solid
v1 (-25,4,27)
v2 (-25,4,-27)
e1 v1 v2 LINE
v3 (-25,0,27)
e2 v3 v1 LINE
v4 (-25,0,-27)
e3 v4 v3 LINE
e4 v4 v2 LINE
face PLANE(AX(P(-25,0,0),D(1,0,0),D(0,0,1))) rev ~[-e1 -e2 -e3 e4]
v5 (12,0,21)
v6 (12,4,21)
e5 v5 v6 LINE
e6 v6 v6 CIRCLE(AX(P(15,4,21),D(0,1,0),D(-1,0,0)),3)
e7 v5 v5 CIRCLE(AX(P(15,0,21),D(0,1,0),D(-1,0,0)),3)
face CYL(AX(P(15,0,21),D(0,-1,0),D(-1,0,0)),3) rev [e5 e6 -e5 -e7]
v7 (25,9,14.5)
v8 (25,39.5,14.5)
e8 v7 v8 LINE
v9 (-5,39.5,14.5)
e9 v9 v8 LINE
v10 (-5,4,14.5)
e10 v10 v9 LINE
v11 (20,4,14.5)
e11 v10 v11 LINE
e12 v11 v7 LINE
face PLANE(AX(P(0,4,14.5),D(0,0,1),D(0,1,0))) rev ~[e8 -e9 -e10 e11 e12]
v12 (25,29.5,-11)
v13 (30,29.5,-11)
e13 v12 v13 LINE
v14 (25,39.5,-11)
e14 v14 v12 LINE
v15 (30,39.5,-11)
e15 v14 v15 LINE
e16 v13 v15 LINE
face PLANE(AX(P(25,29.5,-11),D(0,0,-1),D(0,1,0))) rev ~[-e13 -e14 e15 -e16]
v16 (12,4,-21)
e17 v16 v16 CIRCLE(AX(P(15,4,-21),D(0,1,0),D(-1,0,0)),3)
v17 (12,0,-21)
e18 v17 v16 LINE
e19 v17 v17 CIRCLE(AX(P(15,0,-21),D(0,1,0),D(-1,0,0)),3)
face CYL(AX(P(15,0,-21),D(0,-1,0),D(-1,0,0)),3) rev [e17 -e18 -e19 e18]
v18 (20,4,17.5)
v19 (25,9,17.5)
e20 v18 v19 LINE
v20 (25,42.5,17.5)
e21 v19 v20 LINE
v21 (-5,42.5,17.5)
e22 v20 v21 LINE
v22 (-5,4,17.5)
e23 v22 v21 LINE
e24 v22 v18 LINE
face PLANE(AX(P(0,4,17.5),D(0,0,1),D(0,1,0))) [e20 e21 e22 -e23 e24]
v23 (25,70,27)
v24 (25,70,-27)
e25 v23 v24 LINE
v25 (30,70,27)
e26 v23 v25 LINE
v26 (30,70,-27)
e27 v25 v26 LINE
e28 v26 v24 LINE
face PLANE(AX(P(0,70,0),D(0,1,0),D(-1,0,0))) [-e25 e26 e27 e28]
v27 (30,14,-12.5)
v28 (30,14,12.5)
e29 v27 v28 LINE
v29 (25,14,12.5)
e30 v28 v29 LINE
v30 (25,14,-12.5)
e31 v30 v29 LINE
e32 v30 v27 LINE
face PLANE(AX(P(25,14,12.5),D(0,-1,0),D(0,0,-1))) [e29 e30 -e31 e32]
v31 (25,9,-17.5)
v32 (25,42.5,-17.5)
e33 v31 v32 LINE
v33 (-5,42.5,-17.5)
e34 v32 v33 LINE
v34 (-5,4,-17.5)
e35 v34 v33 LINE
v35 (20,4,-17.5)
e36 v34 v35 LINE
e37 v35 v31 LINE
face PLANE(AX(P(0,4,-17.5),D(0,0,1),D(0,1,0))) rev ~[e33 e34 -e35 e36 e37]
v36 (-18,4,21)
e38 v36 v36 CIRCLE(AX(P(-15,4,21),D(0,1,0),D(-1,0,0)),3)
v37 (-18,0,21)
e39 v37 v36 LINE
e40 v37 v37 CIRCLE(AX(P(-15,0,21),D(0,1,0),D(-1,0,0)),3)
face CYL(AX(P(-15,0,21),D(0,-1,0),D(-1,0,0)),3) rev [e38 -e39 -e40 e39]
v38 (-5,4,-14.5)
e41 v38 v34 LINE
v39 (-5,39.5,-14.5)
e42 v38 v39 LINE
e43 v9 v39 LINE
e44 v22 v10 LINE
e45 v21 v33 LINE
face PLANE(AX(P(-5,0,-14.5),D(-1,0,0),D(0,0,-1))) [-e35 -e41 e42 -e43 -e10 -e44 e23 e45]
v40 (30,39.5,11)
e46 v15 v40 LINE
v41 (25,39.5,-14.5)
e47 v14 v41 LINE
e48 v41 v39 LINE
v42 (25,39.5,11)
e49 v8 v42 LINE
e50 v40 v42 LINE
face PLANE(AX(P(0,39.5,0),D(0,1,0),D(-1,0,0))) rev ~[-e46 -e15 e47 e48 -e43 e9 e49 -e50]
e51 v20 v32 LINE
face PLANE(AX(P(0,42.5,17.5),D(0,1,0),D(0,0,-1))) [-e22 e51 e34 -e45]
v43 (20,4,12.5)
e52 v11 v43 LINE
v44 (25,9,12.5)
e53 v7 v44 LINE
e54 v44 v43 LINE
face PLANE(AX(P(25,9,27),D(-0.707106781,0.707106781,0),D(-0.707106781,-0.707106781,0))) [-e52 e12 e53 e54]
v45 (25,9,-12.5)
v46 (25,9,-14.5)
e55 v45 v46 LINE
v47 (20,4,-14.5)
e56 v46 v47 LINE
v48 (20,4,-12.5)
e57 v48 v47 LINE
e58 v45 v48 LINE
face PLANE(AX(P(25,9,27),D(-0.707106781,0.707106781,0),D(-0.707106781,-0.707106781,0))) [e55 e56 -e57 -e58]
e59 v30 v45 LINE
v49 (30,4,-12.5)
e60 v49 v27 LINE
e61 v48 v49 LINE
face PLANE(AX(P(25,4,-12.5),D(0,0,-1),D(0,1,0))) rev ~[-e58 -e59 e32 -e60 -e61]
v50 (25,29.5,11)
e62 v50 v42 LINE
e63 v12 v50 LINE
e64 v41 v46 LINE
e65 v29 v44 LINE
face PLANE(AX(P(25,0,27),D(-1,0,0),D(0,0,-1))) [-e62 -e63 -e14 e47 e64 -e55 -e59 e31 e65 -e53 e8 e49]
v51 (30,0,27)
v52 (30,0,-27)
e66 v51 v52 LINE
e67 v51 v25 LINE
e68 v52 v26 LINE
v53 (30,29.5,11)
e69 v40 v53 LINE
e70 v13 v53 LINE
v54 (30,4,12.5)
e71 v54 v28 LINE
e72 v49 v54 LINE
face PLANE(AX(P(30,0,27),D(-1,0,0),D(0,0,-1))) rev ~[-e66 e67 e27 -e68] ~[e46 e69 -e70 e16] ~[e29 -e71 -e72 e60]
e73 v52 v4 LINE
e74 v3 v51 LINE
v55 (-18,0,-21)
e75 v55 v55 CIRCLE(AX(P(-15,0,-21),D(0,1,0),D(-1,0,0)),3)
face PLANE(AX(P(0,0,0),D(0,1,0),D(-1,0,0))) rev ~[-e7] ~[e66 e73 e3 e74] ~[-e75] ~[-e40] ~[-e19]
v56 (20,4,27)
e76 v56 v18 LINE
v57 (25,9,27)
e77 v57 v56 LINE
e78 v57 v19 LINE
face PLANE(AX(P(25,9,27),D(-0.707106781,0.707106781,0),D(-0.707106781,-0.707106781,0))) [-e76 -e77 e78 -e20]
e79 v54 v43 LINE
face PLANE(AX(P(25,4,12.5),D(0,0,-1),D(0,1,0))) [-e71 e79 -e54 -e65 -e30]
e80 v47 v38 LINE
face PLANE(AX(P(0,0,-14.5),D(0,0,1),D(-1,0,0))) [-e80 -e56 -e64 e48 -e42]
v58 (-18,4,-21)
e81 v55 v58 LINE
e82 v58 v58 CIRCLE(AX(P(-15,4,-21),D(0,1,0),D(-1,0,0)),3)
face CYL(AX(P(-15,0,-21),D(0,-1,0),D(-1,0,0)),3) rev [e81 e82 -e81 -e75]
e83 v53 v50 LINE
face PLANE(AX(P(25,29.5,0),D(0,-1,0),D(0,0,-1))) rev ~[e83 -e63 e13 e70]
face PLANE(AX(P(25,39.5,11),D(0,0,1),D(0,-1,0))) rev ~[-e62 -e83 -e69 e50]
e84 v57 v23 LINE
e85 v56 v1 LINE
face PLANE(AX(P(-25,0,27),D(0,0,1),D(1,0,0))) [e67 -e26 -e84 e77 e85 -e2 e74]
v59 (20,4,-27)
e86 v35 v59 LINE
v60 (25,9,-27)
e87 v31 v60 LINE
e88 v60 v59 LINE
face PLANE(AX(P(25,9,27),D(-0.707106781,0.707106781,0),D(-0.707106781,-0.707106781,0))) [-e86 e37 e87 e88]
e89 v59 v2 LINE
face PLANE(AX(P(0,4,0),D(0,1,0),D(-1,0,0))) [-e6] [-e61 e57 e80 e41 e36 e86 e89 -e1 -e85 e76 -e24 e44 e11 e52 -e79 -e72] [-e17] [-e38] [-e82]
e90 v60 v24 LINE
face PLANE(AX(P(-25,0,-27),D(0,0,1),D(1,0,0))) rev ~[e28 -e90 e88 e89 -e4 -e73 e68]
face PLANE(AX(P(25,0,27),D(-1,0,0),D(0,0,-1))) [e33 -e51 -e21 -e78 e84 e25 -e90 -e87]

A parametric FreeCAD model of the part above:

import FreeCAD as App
import Part
import Sketcher
from FreeCAD import Vector


def add_polygon(sketch, points):
    """Adds a closed chain of lines whose ends are joined by coincident constraints."""
    first, n = sketch.GeometryCount, len(points)
    for a, b in zip(points, points[1:] + points[:1]):
        sketch.addGeometry(Part.LineSegment(App.Vector(*a, 0), App.Vector(*b, 0)), False)
    for i in range(n):
        sketch.addConstraint(Sketcher.Constraint("Coincident", first + i, 2, first + (i + 1) % n, 1))

doc = App.newDocument("Part")
body = doc.addObject("PartDesign::Body", "Body")

sketch1 = body.newObject("Sketcher::SketchObject", "Sketch")
sketch1.AttachmentSupport = (doc.getObject("XZ_Plane"), [""])
sketch1.MapMode = "FlatFace"
add_polygon(sketch1, [(-25, 27), (25, 27), (25, -27), (-25, -27)])
sketch1.addGeometry(Part.Circle(Vector(-15, 21, 0), Vector(0, 0, 1), 3), False)
sketch1.addGeometry(Part.Circle(Vector(-15, -21, 0), Vector(0, 0, 1), 3), False)
sketch1.addGeometry(Part.Circle(Vector(15, 21, 0), Vector(0, 0, 1), 3), False)
sketch1.addGeometry(Part.Circle(Vector(15, -21, 0), Vector(0, 0, 1), 3), False)
sketch1.addConstraint(Sketcher.Constraint("Horizontal", 0))
sketch1.addConstraint(Sketcher.Constraint("Vertical", 1))
sketch1.addConstraint(Sketcher.Constraint("Horizontal", 2))
sketch1.addConstraint(Sketcher.Constraint("Vertical", 3))
sketch1.addConstraint(Sketcher.Constraint("Equal", 4, 5))
sketch1.addConstraint(Sketcher.Constraint("Equal", 5, 6))
sketch1.addConstraint(Sketcher.Constraint("Equal", 6, 7))
sketch1.addConstraint(Sketcher.Constraint("Symmetric", 5, 3, 6, 3, -1, 1))
sketch1.addConstraint(Sketcher.Constraint("Symmetric", 4, 3, 7, 3, -1, 1))
sketch1.addConstraint(Sketcher.Constraint("Symmetric", 0, 2, 2, 2, -1, 1))
sketch1.addConstraint(Sketcher.Constraint("Symmetric", 4, 3, 6, 3, -2))
sketch1.addConstraint(Sketcher.Constraint("Diameter", 4, 6.0))
sketch1.addConstraint(Sketcher.Constraint("DistanceX", 0, 1, 0, 2, 50.0))
sketch1.addConstraint(Sketcher.Constraint("DistanceY", 1, 2, 1, 1, 54.0))
sketch1.addConstraint(Sketcher.Constraint("DistanceX", 6, 3, 0, 2, 10.0))
sketch1.addConstraint(Sketcher.Constraint("DistanceY", 6, 3, 0, 2, 6.0))
pad1 = body.newObject("PartDesign::Pad", "Pad")
pad1.Profile = sketch1
pad1.Length = 4
pad1.Reversed = True

sketch2 = body.newObject("Sketcher::SketchObject", "Sketch001")
sketch2.AttachmentSupport = (doc.getObject("XZ_Plane"), [""])
sketch2.MapMode = "FlatFace"
add_polygon(sketch2, [(25, -27), (25, 27), (30, 27), (30, -27)])
sketch2.addConstraint(Sketcher.Constraint("Vertical", 0))
sketch2.addConstraint(Sketcher.Constraint("Horizontal", 1))
sketch2.addConstraint(Sketcher.Constraint("Vertical", 2))
sketch2.addConstraint(Sketcher.Constraint("Horizontal", 3))
sketch2.addConstraint(Sketcher.Constraint("DistanceX", 1, 1, 1, 2, 5.0))
sketch2.addConstraint(Sketcher.Constraint("DistanceY", 0, 1, 0, 2, 54.0))
sketch2.addConstraint(Sketcher.Constraint("DistanceX", -1, 1, 0, 2, 25.0))
sketch2.addConstraint(Sketcher.Constraint("DistanceY", -1, 1, 0, 2, 27.0))
pad2 = body.newObject("PartDesign::Pad", "Pad001")
pad2.Profile = sketch2
pad2.Length = 70
pad2.Reversed = True

sketch3 = body.newObject("Sketcher::SketchObject", "Sketch002")
sketch3.AttachmentSupport = (doc.getObject("XY_Plane"), [""])
sketch3.MapMode = "FlatFace"
sketch3.AttachmentOffset = App.Placement(Vector(0, 0, 27), App.Rotation())
add_polygon(sketch3, [(20, 4), (25, 4), (25, 9)])
sketch3.addConstraint(Sketcher.Constraint("Horizontal", 0))
sketch3.addConstraint(Sketcher.Constraint("Vertical", 1))
sketch3.addConstraint(Sketcher.Constraint("Equal", 0, 1))
sketch3.addConstraint(Sketcher.Constraint("DistanceX", 0, 1, 0, 2, 5.0))
sketch3.addConstraint(Sketcher.Constraint("DistanceX", -1, 1, 0, 2, 25.0))
sketch3.addConstraint(Sketcher.Constraint("DistanceY", -1, 1, 0, 2, 4.0))
pad3 = body.newObject("PartDesign::Pad", "Pad002")
pad3.Profile = sketch3
pad3.Length = 54
pad3.Reversed = True

sketch4 = body.newObject("Sketcher::SketchObject", "Sketch003")
sketch4.AttachmentSupport = (doc.getObject("XZ_Plane"), [""])
sketch4.MapMode = "FlatFace"
add_polygon(sketch4, [(-5, 17.5), (0, 17.5), (0, 14.5), (-5, 14.5)])
add_polygon(sketch4, [(-5, -17.5), (-5, -14.5), (0, -14.5), (0, -17.5)])
sketch4.addConstraint(Sketcher.Constraint("Horizontal", 0))
sketch4.addConstraint(Sketcher.Constraint("Vertical", 1))
sketch4.addConstraint(Sketcher.Constraint("Horizontal", 2))
sketch4.addConstraint(Sketcher.Constraint("Vertical", 3))
sketch4.addConstraint(Sketcher.Constraint("Vertical", 4))
sketch4.addConstraint(Sketcher.Constraint("Horizontal", 5))
sketch4.addConstraint(Sketcher.Constraint("Vertical", 6))
sketch4.addConstraint(Sketcher.Constraint("Horizontal", 7))
sketch4.addConstraint(Sketcher.Constraint("Symmetric", 1, 2, 5, 2, -1, 1))
sketch4.addConstraint(Sketcher.Constraint("Symmetric", 0, 2, 6, 2, -1))
sketch4.addConstraint(Sketcher.Constraint("Vertical", 3, 2, 4, 2))
sketch4.addConstraint(Sketcher.Constraint("DistanceX", 0, 1, 0, 2, 5.0))
sketch4.addConstraint(Sketcher.Constraint("DistanceY", 1, 2, 1, 1, 3.0))
sketch4.addConstraint(Sketcher.Constraint("DistanceY", -1, 1, 1, 2, 14.5))
pad4 = body.newObject("PartDesign::Pad", "Pad003")
pad4.Profile = sketch4
pad4.Length = 42.5
pad4.Reversed = True

sketch5 = body.newObject("Sketcher::SketchObject", "Sketch004")
sketch5.AttachmentSupport = (doc.getObject("XZ_Plane"), [""])
sketch5.MapMode = "FlatFace"
add_polygon(sketch5, [(-5, -14), (-5, 14), (0, 14), (0, -14)])
sketch5.addConstraint(Sketcher.Constraint("Vertical", 0))
sketch5.addConstraint(Sketcher.Constraint("Horizontal", 1))
sketch5.addConstraint(Sketcher.Constraint("Vertical", 2))
sketch5.addConstraint(Sketcher.Constraint("Horizontal", 3))
sketch5.addConstraint(Sketcher.Constraint("Symmetric", 1, 2, 2, 2, -1, 1))
sketch5.addConstraint(Sketcher.Constraint("DistanceX", 1, 1, 1, 2, 5.0))
sketch5.addConstraint(Sketcher.Constraint("DistanceY", -1, 1, 0, 2, 14.5))
pad5 = body.newObject("PartDesign::Pad", "Pad004")
pad5.Profile = sketch5
pad5.Length = 42.5
pad5.Reversed = True

sketch6 = body.newObject("Sketcher::SketchObject", "Sketch005")
sketch6.AttachmentSupport = (doc.getObject("XZ_Plane"), [""])
sketch6.MapMode = "FlatFace"
add_polygon(sketch6, [(-5, -14), (-5, 14), (0, 14), (0, -14)])
sketch6.addConstraint(Sketcher.Constraint("Vertical", 0))
sketch6.addConstraint(Sketcher.Constraint("Horizontal", 1))
sketch6.addConstraint(Sketcher.Constraint("Vertical", 2))
sketch6.addConstraint(Sketcher.Constraint("Horizontal", 3))
sketch6.addConstraint(Sketcher.Constraint("Symmetric", 1, 2, 2, 2, -1, 1))
sketch6.addConstraint(Sketcher.Constraint("DistanceX", 1, 1, 1, 2, 5.0))
sketch6.addConstraint(Sketcher.Constraint("DistanceY", -1, 1, 0, 2, 14.5))
pocket1 = body.newObject("PartDesign::Pocket", "Pocket")
pocket1.Profile = sketch6
pocket1.Length = 39.5

sketch7 = body.newObject("Sketcher::SketchObject", "Sketch006")
sketch7.AttachmentSupport = (doc.getObject("XZ_Plane"), [""])
sketch7.MapMode = "FlatFace"
add_polygon(sketch7, [(-5, -14), (-5, 14), (0, 14), (0, -14)])
sketch7.addConstraint(Sketcher.Constraint("Vertical", 0))
sketch7.addConstraint(Sketcher.Constraint("Horizontal", 1))
sketch7.addConstraint(Sketcher.Constraint("Vertical", 2))
sketch7.addConstraint(Sketcher.Constraint("Horizontal", 3))
sketch7.addConstraint(Sketcher.Constraint("Symmetric", 1, 2, 2, 2, -1, 1))
sketch7.addConstraint(Sketcher.Constraint("DistanceX", 1, 1, 1, 2, 5.0))
sketch7.addConstraint(Sketcher.Constraint("DistanceY", -1, 1, 0, 2, 14.5))
pad6 = body.newObject("PartDesign::Pad", "Pad005")
pad6.Profile = sketch7
pad6.Length = 4
pad6.Reversed = True

sketch8 = body.newObject("Sketcher::SketchObject", "Sketch007")
sketch8.AttachmentSupport = (doc.getObject("YZ_Plane"), [""])
sketch8.MapMode = "FlatFace"
sketch8.AttachmentOffset = App.Placement(Vector(0, 0, 25), App.Rotation())
add_polygon(sketch8, [(4, 12), (14, 12), (14, -12), (4, -12)])
add_polygon(sketch8, [(30, -11), (30, 11), (40, 11), (40, -11)])
sketch8.addConstraint(Sketcher.Constraint("Horizontal", 0))
sketch8.addConstraint(Sketcher.Constraint("Vertical", 1))
sketch8.addConstraint(Sketcher.Constraint("Horizontal", 2))
sketch8.addConstraint(Sketcher.Constraint("Vertical", 3))
sketch8.addConstraint(Sketcher.Constraint("Vertical", 4))
sketch8.addConstraint(Sketcher.Constraint("Horizontal", 5))
sketch8.addConstraint(Sketcher.Constraint("Vertical", 6))
sketch8.addConstraint(Sketcher.Constraint("Horizontal", 7))
sketch8.addConstraint(Sketcher.Constraint("Equal", 2, 5))
sketch8.addConstraint(Sketcher.Constraint("DistanceX", 0, 1, 0, 2, 10.0))
sketch8.addConstraint(Sketcher.Constraint("DistanceY", 4, 1, 4, 2, 22.0))
sketch8.addConstraint(Sketcher.Constraint("DistanceY", 4, 2, 0, 2, 1.5))
sketch8.addConstraint(Sketcher.Constraint("DistanceY", 1, 2, 6, 2, 1.5))
sketch8.addConstraint(Sketcher.Constraint("DistanceX", -1, 1, 0, 2, 14.0))
sketch8.addConstraint(Sketcher.Constraint("DistanceY", -1, 1, 4, 2, 11.0))
sketch8.addConstraint(Sketcher.Constraint("DistanceX", -1, 1, 4, 2, 29.5))
pocket2 = body.newObject("PartDesign::Pocket", "Pocket001")
pocket2.Profile = sketch8
pocket2.Length = 10
pocket2.Midplane = True

sketch9 = body.newObject("Sketcher::SketchObject", "Sketch008")
sketch9.AttachmentSupport = (doc.getObject("YZ_Plane"), [""])
sketch9.MapMode = "FlatFace"
add_polygon(sketch9, [(4, 17.5), (4, 14.5), (39.5, 14.5), (39.5, -14.5), (4, -14.5), (4, -17.5), (42.5, -17.5), (42.5, 17.5)])
sketch9.addConstraint(Sketcher.Constraint("Vertical", 0))
sketch9.addConstraint(Sketcher.Constraint("Horizontal", 1))
sketch9.addConstraint(Sketcher.Constraint("Vertical", 2))
sketch9.addConstraint(Sketcher.Constraint("Horizontal", 3))
sketch9.addConstraint(Sketcher.Constraint("Vertical", 4))
sketch9.addConstraint(Sketcher.Constraint("Horizontal", 5))
sketch9.addConstraint(Sketcher.Constraint("Vertical", 6))
sketch9.addConstraint(Sketcher.Constraint("Horizontal", 7))
sketch9.addConstraint(Sketcher.Constraint("Symmetric", 0, 2, 3, 2, -1))
sketch9.addConstraint(Sketcher.Constraint("Equal", 0, 4))
sketch9.addConstraint(Sketcher.Constraint("DistanceY", 0, 2, 0, 1, 3.0))
sketch9.addConstraint(Sketcher.Constraint("DistanceY", 2, 2, 2, 1, 29.0))
sketch9.addConstraint(Sketcher.Constraint("DistanceX", 1, 1, 1, 2, 35.5))
sketch9.addConstraint(Sketcher.Constraint("DistanceX", 5, 1, 5, 2, 38.5))
sketch9.addConstraint(Sketcher.Constraint("DistanceX", -1, 1, 0, 2, 4.0))
pad7 = body.newObject("PartDesign::Pad", "Pad006")
pad7.Profile = sketch9
pad7.Length = 25

doc.recompute()
